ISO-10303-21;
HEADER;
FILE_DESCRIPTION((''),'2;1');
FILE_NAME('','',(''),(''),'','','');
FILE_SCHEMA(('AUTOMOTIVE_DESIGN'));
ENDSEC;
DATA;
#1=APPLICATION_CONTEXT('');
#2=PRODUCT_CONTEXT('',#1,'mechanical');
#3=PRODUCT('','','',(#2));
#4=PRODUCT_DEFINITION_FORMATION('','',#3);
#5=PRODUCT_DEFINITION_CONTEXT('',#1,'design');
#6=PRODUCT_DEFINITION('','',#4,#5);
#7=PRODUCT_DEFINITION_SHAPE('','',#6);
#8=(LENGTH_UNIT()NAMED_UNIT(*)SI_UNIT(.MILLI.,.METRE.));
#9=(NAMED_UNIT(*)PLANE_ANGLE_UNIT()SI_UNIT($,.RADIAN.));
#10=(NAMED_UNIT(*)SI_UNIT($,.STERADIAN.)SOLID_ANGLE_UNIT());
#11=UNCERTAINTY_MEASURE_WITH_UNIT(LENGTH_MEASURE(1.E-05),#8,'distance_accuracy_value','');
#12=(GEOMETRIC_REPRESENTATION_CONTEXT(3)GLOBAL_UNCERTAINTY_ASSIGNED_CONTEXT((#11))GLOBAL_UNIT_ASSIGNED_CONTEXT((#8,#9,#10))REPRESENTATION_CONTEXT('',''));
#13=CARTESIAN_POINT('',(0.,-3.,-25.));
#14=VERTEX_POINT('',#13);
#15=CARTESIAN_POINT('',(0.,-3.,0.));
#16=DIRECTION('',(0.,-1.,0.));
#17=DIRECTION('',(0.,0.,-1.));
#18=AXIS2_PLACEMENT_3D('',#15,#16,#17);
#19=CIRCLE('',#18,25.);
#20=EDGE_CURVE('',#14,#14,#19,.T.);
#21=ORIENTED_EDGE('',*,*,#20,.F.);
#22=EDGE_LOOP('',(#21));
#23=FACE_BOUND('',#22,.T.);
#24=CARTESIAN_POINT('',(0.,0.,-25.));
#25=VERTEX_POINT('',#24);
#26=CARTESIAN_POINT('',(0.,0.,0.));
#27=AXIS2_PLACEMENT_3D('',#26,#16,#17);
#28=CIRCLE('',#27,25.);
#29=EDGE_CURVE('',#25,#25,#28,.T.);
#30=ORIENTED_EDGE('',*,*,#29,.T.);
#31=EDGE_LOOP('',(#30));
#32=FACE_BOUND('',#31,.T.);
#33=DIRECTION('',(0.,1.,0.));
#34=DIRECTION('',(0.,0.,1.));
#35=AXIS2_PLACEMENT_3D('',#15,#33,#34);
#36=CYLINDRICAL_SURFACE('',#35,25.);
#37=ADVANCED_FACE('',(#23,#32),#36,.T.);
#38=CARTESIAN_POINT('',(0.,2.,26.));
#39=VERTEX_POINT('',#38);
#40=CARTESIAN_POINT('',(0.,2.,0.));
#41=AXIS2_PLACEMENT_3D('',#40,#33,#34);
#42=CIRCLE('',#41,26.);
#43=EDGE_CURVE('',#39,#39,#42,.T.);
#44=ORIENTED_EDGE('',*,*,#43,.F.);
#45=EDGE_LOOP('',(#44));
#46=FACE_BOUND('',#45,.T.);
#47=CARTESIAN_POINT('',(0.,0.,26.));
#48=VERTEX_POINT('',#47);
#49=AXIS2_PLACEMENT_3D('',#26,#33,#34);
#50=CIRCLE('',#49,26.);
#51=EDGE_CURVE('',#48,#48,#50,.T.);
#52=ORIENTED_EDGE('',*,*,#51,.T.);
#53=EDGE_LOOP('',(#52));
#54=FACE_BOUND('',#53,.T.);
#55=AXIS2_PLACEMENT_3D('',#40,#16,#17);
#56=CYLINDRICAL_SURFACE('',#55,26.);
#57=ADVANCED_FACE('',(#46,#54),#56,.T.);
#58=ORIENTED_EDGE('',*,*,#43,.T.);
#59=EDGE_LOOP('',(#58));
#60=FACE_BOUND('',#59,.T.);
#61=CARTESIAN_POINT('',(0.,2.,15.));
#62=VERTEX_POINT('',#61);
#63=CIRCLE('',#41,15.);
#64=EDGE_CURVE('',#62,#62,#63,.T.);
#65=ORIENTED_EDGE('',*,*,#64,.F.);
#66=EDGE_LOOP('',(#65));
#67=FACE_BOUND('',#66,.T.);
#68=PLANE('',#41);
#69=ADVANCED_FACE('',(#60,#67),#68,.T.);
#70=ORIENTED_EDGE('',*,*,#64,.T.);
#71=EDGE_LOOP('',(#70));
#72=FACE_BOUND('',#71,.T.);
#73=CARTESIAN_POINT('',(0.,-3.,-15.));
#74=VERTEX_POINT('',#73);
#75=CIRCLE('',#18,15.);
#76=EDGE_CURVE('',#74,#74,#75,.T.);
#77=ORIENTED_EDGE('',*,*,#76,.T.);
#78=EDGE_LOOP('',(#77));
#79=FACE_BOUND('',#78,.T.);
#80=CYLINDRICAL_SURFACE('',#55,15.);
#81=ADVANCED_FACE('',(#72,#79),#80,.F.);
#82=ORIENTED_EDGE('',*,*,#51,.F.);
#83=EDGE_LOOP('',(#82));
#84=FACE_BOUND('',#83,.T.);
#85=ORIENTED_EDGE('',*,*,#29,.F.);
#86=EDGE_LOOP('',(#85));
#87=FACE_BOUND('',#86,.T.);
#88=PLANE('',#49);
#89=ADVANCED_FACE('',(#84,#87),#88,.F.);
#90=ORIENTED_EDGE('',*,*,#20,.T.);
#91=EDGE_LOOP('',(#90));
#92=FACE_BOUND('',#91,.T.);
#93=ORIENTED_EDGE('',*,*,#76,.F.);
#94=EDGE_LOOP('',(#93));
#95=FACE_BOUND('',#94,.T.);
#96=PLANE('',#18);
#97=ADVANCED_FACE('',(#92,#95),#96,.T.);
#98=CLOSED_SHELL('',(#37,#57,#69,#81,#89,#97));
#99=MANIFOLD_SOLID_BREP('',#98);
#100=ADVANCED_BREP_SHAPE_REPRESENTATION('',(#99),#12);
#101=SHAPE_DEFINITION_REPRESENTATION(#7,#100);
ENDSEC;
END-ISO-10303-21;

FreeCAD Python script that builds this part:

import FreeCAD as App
import Part
import Sketcher
from FreeCAD import Vector
Q = App.Units.Quantity

doc = App.newDocument("Part")
params = doc.addObject("Spreadsheet::Sheet", "Params")
for row, (alias, value) in enumerate([
    ("sketch1_diameter", "52 mm"),
    ("sketch1_diameter2", "30 mm"),
    ("pad1_length", "2 mm"),
    ("sketch2_diameter", "50 mm"),
    ("sketch2_diameter2", "30 mm"),
    ("pad2_length", "3 mm"),
], start=1):
    params.set(f"A{row}", alias)
    params.set(f"B{row}", "=" + value)
    params.setAlias(f"B{row}", alias)

body = doc.addObject("PartDesign::Body", "Body")

# Sketch on XZ plane
sketch1 = body.newObject("Sketcher::SketchObject", "Sketch")
sketch1.AttachmentSupport = (doc.getObject("XZ_Plane"), [""])
sketch1.MapMode = "FlatFace"
sketch1.addGeometry([
    Part.Circle(Vector(0, 0, 0), Vector(0, 0, 1), 26),
    Part.Circle(Vector(0, 0, 0), Vector(0, 0, 1), 15),
], False)
sketch1.addConstraint([
    Sketcher.Constraint("Coincident", 0, 3, -1, 1),
    Sketcher.Constraint("Coincident", 1, 3, -1, 1),
    Sketcher.Constraint("Diameter", 0, Q("52 mm")),
    Sketcher.Constraint("Diameter", 1, Q("30 mm")),
])
sketch1.setExpression("Constraints[2]", "Params.sketch1_diameter")
sketch1.setExpression("Constraints[3]", "Params.sketch1_diameter2")
pad1 = body.newObject("PartDesign::Pad", "Pad")
pad1.Profile = sketch1
pad1.setExpression("Length", "Params.pad1_length")
pad1.Reversed = True

# Sketch on XZ plane
sketch2 = body.newObject("Sketcher::SketchObject", "Sketch001")
sketch2.AttachmentSupport = (doc.getObject("XZ_Plane"), [""])
sketch2.MapMode = "FlatFace"
sketch2.addGeometry([
    Part.Circle(Vector(0, 0, 0), Vector(0, 0, 1), 25),
    Part.Circle(Vector(0, 0, 0), Vector(0, 0, 1), 15),
], False)
sketch2.addConstraint([
    Sketcher.Constraint("Coincident", 0, 3, -1, 1),
    Sketcher.Constraint("Coincident", 1, 3, -1, 1),
    Sketcher.Constraint("Diameter", 0, Q("50 mm")),
    Sketcher.Constraint("Diameter", 1, Q("30 mm")),
])
sketch2.setExpression("Constraints[2]", "Params.sketch2_diameter")
sketch2.setExpression("Constraints[3]", "Params.sketch2_diameter2")
pad2 = body.newObject("PartDesign::Pad", "Pad001")
pad2.Profile = sketch2
pad2.setExpression("Length", "Params.pad2_length")

doc.recompute()
